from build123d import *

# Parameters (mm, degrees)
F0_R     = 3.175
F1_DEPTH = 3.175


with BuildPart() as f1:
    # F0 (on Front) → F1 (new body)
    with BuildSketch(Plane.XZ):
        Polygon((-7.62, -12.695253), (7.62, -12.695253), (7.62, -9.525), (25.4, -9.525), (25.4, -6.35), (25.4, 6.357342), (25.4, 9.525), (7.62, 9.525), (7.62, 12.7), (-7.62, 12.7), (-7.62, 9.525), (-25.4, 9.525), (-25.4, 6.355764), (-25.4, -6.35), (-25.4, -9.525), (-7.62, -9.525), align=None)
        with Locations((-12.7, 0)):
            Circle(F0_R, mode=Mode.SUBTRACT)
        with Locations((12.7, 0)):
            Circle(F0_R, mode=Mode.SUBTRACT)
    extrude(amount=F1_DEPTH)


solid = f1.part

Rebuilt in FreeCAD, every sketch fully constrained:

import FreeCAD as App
import Part
import Sketcher
from FreeCAD import Vector
Q = App.Units.Quantity

doc = App.newDocument("Part")
body = doc.addObject("PartDesign::Body", "Body")

sketch1 = doc.addObject("Sketcher::SketchObject", "Sketch")
body.addObject(sketch1)
sketch1.AttachmentSupport = (doc.XZ_Plane, [""])
sketch1.MapMode = "FlatFace"
sketch1.addGeometry([
    Part.LineSegment(Vector(-7.6, -12.7, 0), Vector(7.6, -12.7, 0)),
    Part.LineSegment(Vector(7.6, -12.7, 0), Vector(7.6, -9.5, 0)),
    Part.LineSegment(Vector(7.6, -9.5, 0), Vector(25.4, -9.5, 0)),
    Part.LineSegment(Vector(25.4, -9.5, 0), Vector(25.4, 9.5, 0)),
    Part.LineSegment(Vector(25.4, 9.5, 0), Vector(7.6, 9.5, 0)),
    Part.LineSegment(Vector(7.6, 9.5, 0), Vector(7.6, 12.7, 0)),
    Part.LineSegment(Vector(7.6, 12.7, 0), Vector(-7.6, 12.7, 0)),
    Part.LineSegment(Vector(-7.6, 12.7, 0), Vector(-7.6, 9.5, 0)),
    Part.LineSegment(Vector(-7.6, 9.5, 0), Vector(-25.4, 9.5, 0)),
    Part.LineSegment(Vector(-25.4, 9.5, 0), Vector(-25.4, -9.5, 0)),
    Part.LineSegment(Vector(-25.4, -9.5, 0), Vector(-7.6, -9.5, 0)),
    Part.LineSegment(Vector(-7.6, -9.5, 0), Vector(-7.6, -12.7, 0)),
    Part.Circle(Vector(-12.7, 0, 0), Vector(0, 0, 1), 3.2),
    Part.Circle(Vector(12.7, 0, 0), Vector(0, 0, 1), 3.2),
], False)
sketch1.addConstraint([
    Sketcher.Constraint("Coincident", 0, 2, 1, 1),
    Sketcher.Constraint("Coincident", 1, 2, 2, 1),
    Sketcher.Constraint("Coincident", 2, 2, 3, 1),
    Sketcher.Constraint("Coincident", 3, 2, 4, 1),
    Sketcher.Constraint("Coincident", 4, 2, 5, 1),
    Sketcher.Constraint("Coincident", 5, 2, 6, 1),
    Sketcher.Constraint("Coincident", 6, 2, 7, 1),
    Sketcher.Constraint("Coincident", 7, 2, 8, 1),
    Sketcher.Constraint("Coincident", 8, 2, 9, 1),
    Sketcher.Constraint("Coincident", 9, 2, 10, 1),
    Sketcher.Constraint("Coincident", 10, 2, 11, 1),
    Sketcher.Constraint("Coincident", 11, 2, 0, 1),
    Sketcher.Constraint("Horizontal", 0),
    Sketcher.Constraint("Vertical", 1),
    Sketcher.Constraint("Horizontal", 2),
    Sketcher.Constraint("Vertical", 3),
    Sketcher.Constraint("Horizontal", 4),
    Sketcher.Constraint("Vertical", 5),
    Sketcher.Constraint("Horizontal", 6),
    Sketcher.Constraint("Vertical", 7),
    Sketcher.Constraint("Horizontal", 8),
    Sketcher.Constraint("Vertical", 9),
    Sketcher.Constraint("Horizontal", 10),
    Sketcher.Constraint("Vertical", 11),
    Sketcher.Constraint("Equal", 12, 13),
    Sketcher.Constraint("Symmetric", 12, 3, 13, 3, -1, 1),
    Sketcher.Constraint("Symmetric", 1, 2, 7, 2, -1, 1),
    Sketcher.Constraint("Symmetric", 3, 2, 9, 2, -1, 1),
    Sketcher.Constraint("Symmetric", 4, 2, 7, 2, -2),
    Sketcher.Constraint("PointOnObject", 12, 3, -1),
    Sketcher.Constraint("Vertical", 7, 2, 10, 2),
    Sketcher.Constraint("Diameter", 12, Q("0.25 in")),
    Sketcher.Constraint("DistanceX", 0, 1, 0, 2, Q("0.6 in")),
    Sketcher.Constraint("DistanceX", 2, 1, 2, 2, Q("0.7 in")),
    Sketcher.Constraint("DistanceX", 12, 3, 13, 3, Q("1 in")),
    Sketcher.Constraint("DistanceY", 3, 1, 3, 2, Q("0.75 in")),
    Sketcher.Constraint("DistanceY", -1, 1, 5, 2, Q("0.5 in")),
    Sketcher.Constraint("DistanceY", 1, 1, 1, 2, 3.170253),
])
pad1 = doc.addObject("PartDesign::Pad", "Pad")
body.addObject(pad1)
pad1.Profile = sketch1
pad1.Length = Q("0.125 in")

doc.recompute()
